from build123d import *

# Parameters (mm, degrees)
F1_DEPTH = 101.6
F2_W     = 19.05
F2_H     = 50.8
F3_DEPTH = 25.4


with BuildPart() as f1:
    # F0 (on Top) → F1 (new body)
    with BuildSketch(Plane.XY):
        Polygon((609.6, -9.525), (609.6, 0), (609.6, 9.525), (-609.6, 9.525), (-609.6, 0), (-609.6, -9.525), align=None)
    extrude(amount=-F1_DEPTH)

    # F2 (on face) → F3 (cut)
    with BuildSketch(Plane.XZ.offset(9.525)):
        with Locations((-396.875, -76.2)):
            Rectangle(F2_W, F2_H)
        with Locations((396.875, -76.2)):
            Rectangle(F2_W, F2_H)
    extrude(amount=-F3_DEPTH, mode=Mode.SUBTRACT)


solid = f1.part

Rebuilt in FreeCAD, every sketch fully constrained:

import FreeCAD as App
import Part
import Sketcher
from FreeCAD import Vector
Q = App.Units.Quantity


def add_polygon(sketch, points):
    """Adds a closed chain of lines whose ends are joined by coincident constraints."""
    first, n = sketch.GeometryCount, len(points)
    for a, b in zip(points, points[1:] + points[:1]):
        sketch.addGeometry(Part.LineSegment(App.Vector(*a, 0), App.Vector(*b, 0)), False)
    for i in range(n):
        sketch.addConstraint(Sketcher.Constraint("Coincident", first + i, 2, first + (i + 1) % n, 1))

doc = App.newDocument("Part")
params = doc.addObject("Spreadsheet::Sheet", "Params")
for row, (alias, value) in enumerate([
    ("sketch1_width", "48 in"),
    ("sketch1_height", "0.75 in"),
    ("pad1_length", "4 in"),
    ("sketch2_height", "2 in"),
    ("sketch2_width", "0.75 in"),
    ("pocket1_length", "1 in"),
], start=1):
    params.set(f"A{row}", alias)
    params.set(f"B{row}", "=" + value)
    params.setAlias(f"B{row}", alias)

body = doc.addObject("PartDesign::Body", "Body")

# Sketch on XY plane
sketch1 = body.newObject("Sketcher::SketchObject", "Sketch")
sketch1.AttachmentSupport = (doc.getObject("XY_Plane"), [""])
sketch1.MapMode = "FlatFace"
add_polygon(sketch1, [(610, -10), (610, 10), (-610, 10), (-610, -10)])  # lines 0-3
sketch1.addConstraint([
    Sketcher.Constraint("Vertical", 0),
    Sketcher.Constraint("Horizontal", 1),
    Sketcher.Constraint("Vertical", 2),
    Sketcher.Constraint("Horizontal", 3),
    Sketcher.Constraint("Symmetric", 0, 2, 2, 2, -1, 1),
    Sketcher.Constraint("DistanceX", 1, 2, 1, 1, Q("48 in")),
    Sketcher.Constraint("DistanceY", 0, 1, 0, 2, Q("0.75 in")),
])
sketch1.setExpression("Constraints[9]", "Params.sketch1_width")
sketch1.setExpression("Constraints[10]", "Params.sketch1_height")
pad1 = body.newObject("PartDesign::Pad", "Pad")
pad1.Profile = sketch1
pad1.setExpression("Length", "Params.pad1_length")
pad1.Reversed = True

# Sketch on XZ plane
sketch2 = body.newObject("Sketcher::SketchObject", "Sketch001")
sketch2.AttachmentSupport = (doc.getObject("XZ_Plane"), [""])
sketch2.MapMode = "FlatFace"
sketch2.AttachmentOffset = App.Placement(Vector(0, 0, 0.375 * 25.4), App.Rotation())
add_polygon(sketch2, [(-406, -51), (-406, -102), (-387, -102), (-387, -51)])  # lines 0-3
add_polygon(sketch2, [(387, -51), (387, -102), (406, -102), (406, -51)])  # lines 4-7
sketch2.addConstraint([
    Sketcher.Constraint("Vertical", 0),
    Sketcher.Constraint("Horizontal", 1),
    Sketcher.Constraint("Vertical", 2),
    Sketcher.Constraint("Horizontal", 3),
    Sketcher.Constraint("Vertical", 4),
    Sketcher.Constraint("Horizontal", 5),
    Sketcher.Constraint("Vertical", 6),
    Sketcher.Constraint("Horizontal", 7),
    Sketcher.Constraint("Symmetric", 1, 2, 4, 2, -2),
    Sketcher.Constraint("Symmetric", 3, 2, 6, 2, -2),
    Sketcher.Constraint("DistanceY", 0, 2, 0, 1, Q("2 in")),
    Sketcher.Constraint("DistanceX", 0, 2, -1, 1, Q("16 in")),
    Sketcher.Constraint("DistanceY", 0, 2, -1, 1, Q("4 in")),
    Sketcher.Constraint("DistanceX", 1, 1, 1, 2, Q("0.75 in")),
])
sketch2.setExpression("Constraints[18]", "Params.sketch2_height")
sketch2.setExpression("Constraints[21]", "Params.sketch2_width")
pocket1 = body.newObject("PartDesign::Pocket", "Pocket")
pocket1.Profile = sketch2
pocket1.setExpression("Length", "Params.pocket1_length")

doc.recompute()
